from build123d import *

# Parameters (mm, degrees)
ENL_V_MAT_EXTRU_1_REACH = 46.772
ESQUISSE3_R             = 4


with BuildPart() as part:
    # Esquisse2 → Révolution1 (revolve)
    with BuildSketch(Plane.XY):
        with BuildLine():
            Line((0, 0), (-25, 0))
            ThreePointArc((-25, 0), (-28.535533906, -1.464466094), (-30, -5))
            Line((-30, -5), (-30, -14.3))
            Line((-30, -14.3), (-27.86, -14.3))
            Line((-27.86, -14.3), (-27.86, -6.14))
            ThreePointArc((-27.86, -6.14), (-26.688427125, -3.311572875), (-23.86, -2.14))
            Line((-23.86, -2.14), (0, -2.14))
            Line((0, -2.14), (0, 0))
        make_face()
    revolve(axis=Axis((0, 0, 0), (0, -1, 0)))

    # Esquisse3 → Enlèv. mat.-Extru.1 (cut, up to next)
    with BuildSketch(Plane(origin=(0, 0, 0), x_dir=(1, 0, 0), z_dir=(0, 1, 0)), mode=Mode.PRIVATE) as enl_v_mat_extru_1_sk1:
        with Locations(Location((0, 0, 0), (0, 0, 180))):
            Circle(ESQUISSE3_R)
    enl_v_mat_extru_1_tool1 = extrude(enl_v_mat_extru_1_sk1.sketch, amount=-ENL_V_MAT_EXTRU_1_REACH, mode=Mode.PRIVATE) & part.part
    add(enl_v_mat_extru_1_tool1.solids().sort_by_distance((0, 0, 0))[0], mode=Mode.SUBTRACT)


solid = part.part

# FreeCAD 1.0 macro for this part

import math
import FreeCAD as App
import Part
import Sketcher
from FreeCAD import Vector
Q = App.Units.Quantity

doc = App.newDocument("Part")
params = doc.addObject("Spreadsheet::Sheet", "Params")
for row, (alias, value) in enumerate([
    ("sketch1_radius", "5 mm"),
    ("sketch1_radius2", "4 mm"),
    ("sketch1_width", "25 mm"),
    ("sketch1_height", "9.3 mm"),
    ("sketch1_width2", "2.14 mm"),
    ("revolution_angle", "360 deg"),
    ("sketch2_diameter", "8 mm"),
], start=1):
    params.set(f"A{row}", alias)
    params.set(f"B{row}", "=" + value)
    params.setAlias(f"B{row}", alias)

body = doc.addObject("PartDesign::Body", "Body")

# Sketch on XY plane
sketch1 = doc.addObject("Sketcher::SketchObject", "Sketch")
body.addObject(sketch1)
sketch1.AttachmentSupport = (doc.XY_Plane, [""])
sketch1.MapMode = "FlatFace"
sketch1.addGeometry(Part.LineSegment(Vector(0, 0, 0), Vector(-25, 0, 0)), False)
sketch1.addGeometry(Part.ArcOfCircle(Part.Circle(Vector(-25, -5, 0), Vector(0, 0, 1), 5), math.radians(90), math.radians(180)), False)
sketch1.addGeometry(Part.LineSegment(Vector(-30, -5, 0), Vector(-30, -14.3, 0)), False)
sketch1.addGeometry(Part.LineSegment(Vector(-30, -14.3, 0), Vector(-27.9, -14.3, 0)), False)
sketch1.addGeometry(Part.LineSegment(Vector(-27.9, -14.3, 0), Vector(-27.9, -6.1, 0)), False)
sketch1.addGeometry(Part.ArcOfCircle(Part.Circle(Vector(-23.9, -6.1, 0), Vector(0, 0, 1), 4), math.radians(90), math.radians(180)), False)
sketch1.addGeometry(Part.LineSegment(Vector(-23.9, -2.1, 0), Vector(0, -2.1, 0)), False)
sketch1.addGeometry(Part.LineSegment(Vector(0, -2.1, 0), Vector(0, 0, 0)), False)
sketch1.addConstraint(Sketcher.Constraint("Tangent", 0, 2, 1, 1))
sketch1.addConstraint(Sketcher.Constraint("Tangent", 1, 2, 2, 1))
sketch1.addConstraint(Sketcher.Constraint("Coincident", 2, 2, 3, 1))
sketch1.addConstraint(Sketcher.Constraint("Coincident", 3, 2, 4, 1))
sketch1.addConstraint(Sketcher.Constraint("Tangent", 4, 2, 5, 2))
sketch1.addConstraint(Sketcher.Constraint("Tangent", 5, 1, 6, 1))
sketch1.addConstraint(Sketcher.Constraint("Coincident", 6, 2, 7, 1))
sketch1.addConstraint(Sketcher.Constraint("Coincident", 7, 2, 0, 1))
sketch1.addConstraint(Sketcher.Constraint("Horizontal", 0))
sketch1.addConstraint(Sketcher.Constraint("Vertical", 2))
sketch1.addConstraint(Sketcher.Constraint("Horizontal", 3))
sketch1.addConstraint(Sketcher.Constraint("Vertical", 4))
sketch1.addConstraint(Sketcher.Constraint("Horizontal", 6))
sketch1.addConstraint(Sketcher.Constraint("Vertical", 7))
sketch1.addConstraint(Sketcher.Constraint("Coincident", 7, 2, -1, 1))
sketch1.addConstraint(Sketcher.Constraint("Equal", 3, 7))
sketch1.addConstraint(Sketcher.Constraint("Radius", 1, Q("5 mm")))
sketch1.addConstraint(Sketcher.Constraint("Radius", 5, Q("4 mm")))
sketch1.addConstraint(Sketcher.Constraint("DistanceX", 0, 2, 0, 1, Q("25 mm")))
sketch1.addConstraint(Sketcher.Constraint("DistanceY", 2, 2, 2, 1, Q("9.3 mm")))
sketch1.addConstraint(Sketcher.Constraint("DistanceX", 3, 1, 3, 2, Q("2.14 mm")))
sketch1.setExpression("Constraints[16]", "Params.sketch1_radius")
sketch1.setExpression("Constraints[17]", "Params.sketch1_radius2")
sketch1.setExpression("Constraints[18]", "Params.sketch1_width")
sketch1.setExpression("Constraints[19]", "Params.sketch1_height")
sketch1.setExpression("Constraints[20]", "Params.sketch1_width2")
revolution = doc.addObject("PartDesign::Revolution", "Revolution")
body.addObject(revolution)
revolution.Profile = sketch1
revolution.ReferenceAxis = (sketch1, ["V_Axis"])
revolution.setExpression("Angle", "Params.revolution_angle")

# Sketch on XZ plane
sketch2 = doc.addObject("Sketcher::SketchObject", "Sketch001")
body.addObject(sketch2)
sketch2.AttachmentSupport = (doc.XZ_Plane, [""])
sketch2.MapMode = "FlatFace"
sketch2.addGeometry(Part.Circle(Vector(0, 0, 0), Vector(0, 0, 1), 4), False)
sketch2.addConstraint(Sketcher.Constraint("Coincident", 0, 3, -1, 1))
sketch2.addConstraint(Sketcher.Constraint("Diameter", 0, Q("8 mm")))
sketch2.setExpression("Constraints[1]", "Params.sketch2_diameter")
pocket1 = doc.addObject("PartDesign::Pocket", "Pocket")
body.addObject(pocket1)
pocket1.Profile = sketch2
pocket1.Type = "UpToFirst"
pocket1.Reversed = True

doc.recompute()
